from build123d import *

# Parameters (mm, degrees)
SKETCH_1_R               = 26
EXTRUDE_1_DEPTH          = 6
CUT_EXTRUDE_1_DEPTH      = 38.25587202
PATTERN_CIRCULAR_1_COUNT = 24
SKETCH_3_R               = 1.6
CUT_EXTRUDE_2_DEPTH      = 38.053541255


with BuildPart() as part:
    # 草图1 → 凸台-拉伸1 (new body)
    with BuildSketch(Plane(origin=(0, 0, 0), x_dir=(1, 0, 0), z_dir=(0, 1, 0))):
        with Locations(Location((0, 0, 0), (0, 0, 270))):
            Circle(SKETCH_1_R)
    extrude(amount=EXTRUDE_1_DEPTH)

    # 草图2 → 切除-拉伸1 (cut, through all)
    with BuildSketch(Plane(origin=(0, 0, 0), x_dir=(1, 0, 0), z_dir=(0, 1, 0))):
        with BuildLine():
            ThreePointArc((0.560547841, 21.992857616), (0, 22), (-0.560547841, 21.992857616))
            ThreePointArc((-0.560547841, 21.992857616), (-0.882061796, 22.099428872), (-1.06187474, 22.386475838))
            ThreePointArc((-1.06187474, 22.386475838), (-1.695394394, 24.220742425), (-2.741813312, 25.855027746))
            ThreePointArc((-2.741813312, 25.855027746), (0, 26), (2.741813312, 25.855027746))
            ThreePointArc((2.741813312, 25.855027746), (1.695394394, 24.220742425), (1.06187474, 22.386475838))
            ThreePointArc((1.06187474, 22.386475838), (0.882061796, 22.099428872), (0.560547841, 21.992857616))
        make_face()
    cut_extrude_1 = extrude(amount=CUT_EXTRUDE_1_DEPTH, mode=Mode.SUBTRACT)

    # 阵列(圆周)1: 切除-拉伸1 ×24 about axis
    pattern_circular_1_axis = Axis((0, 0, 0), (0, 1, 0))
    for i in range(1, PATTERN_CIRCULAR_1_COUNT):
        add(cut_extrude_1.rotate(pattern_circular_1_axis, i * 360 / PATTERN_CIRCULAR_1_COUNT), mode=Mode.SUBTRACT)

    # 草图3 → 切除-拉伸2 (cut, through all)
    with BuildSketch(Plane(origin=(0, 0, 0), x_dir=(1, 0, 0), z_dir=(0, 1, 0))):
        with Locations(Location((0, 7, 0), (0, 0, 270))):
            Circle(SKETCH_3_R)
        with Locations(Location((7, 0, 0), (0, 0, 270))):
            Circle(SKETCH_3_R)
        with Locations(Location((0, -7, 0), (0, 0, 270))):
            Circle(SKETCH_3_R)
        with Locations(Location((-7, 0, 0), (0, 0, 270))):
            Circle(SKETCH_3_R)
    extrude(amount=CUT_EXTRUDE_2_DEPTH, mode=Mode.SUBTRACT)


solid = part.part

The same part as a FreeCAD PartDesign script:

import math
import FreeCAD as App
import Part
import Sketcher
from FreeCAD import Vector
Q = App.Units.Quantity

doc = App.newDocument("Part")
body = doc.addObject("PartDesign::Body", "Body")

# Sketch on XZ plane
sketch1 = body.newObject("Sketcher::SketchObject", "Sketch")
sketch1.AttachmentSupport = (doc.getObject("XZ_Plane"), [""])
sketch1.MapMode = "FlatFace"
sketch1.addGeometry(Part.Circle(Vector(0, 0, 0), Vector(0, 0, 1), 26), False)
sketch1.addConstraint(Sketcher.Constraint("Coincident", 0, 3, -1, 1))
sketch1.addConstraint(Sketcher.Constraint("Diameter", 0, Q("52 mm")))
pad1 = body.newObject("PartDesign::Pad", "Pad")
pad1.Profile = sketch1
pad1.Length = 6
pad1.Reversed = True

# Sketch on XZ plane
sketch2 = body.newObject("Sketcher::SketchObject", "Sketch001")
sketch2.AttachmentSupport = (doc.getObject("XZ_Plane"), [""])
sketch2.MapMode = "FlatFace"
sketch2.addGeometry(Part.ArcOfCircle(Part.Circle(Vector(0, 0, 0), Vector(0, 0, 1), 22), math.radians(-91.46), math.radians(-88.54)), False)
sketch2.addGeometry(Part.ArcOfCircle(Part.Circle(Vector(0.57, -22.49, 0), Vector(0, 0, 1), 0.5), math.radians(12), math.radians(91)), False)
sketch2.addGeometry(Part.ArcOfCircle(Part.Circle(Vector(9.08, -20.64, 0), Vector(0, 0, 1), 8.21), math.radians(-168), math.radians(-141)), False)
sketch2.addGeometry(Part.ArcOfCircle(Part.Circle(Vector(0, 0, 0), Vector(0, 0, 1), 26), math.radians(-96.05), math.radians(-83.95)), False)
sketch2.addGeometry(Part.ArcOfCircle(Part.Circle(Vector(-9.08, -20.64, 0), Vector(0, 0, 1), 8.21), math.radians(-39), math.radians(-12)), False)
sketch2.addGeometry(Part.ArcOfCircle(Part.Circle(Vector(-0.57, -22.49, 0), Vector(0, 0, 1), 0.5), math.radians(89), math.radians(168)), False)
sketch2.addConstraint(Sketcher.Constraint("Tangent", 0, 2, 1, 2))
sketch2.addConstraint(Sketcher.Constraint("Tangent", 1, 1, 2, 1))
sketch2.addConstraint(Sketcher.Constraint("Coincident", 2, 2, 3, 2))
sketch2.addConstraint(Sketcher.Constraint("Coincident", 3, 1, 4, 1))
sketch2.addConstraint(Sketcher.Constraint("Tangent", 4, 2, 5, 2))
sketch2.addConstraint(Sketcher.Constraint("Tangent", 5, 1, 0, 1))
sketch2.addConstraint(Sketcher.Constraint("Coincident", 0, 3, -1, 1))
sketch2.addConstraint(Sketcher.Constraint("Coincident", 3, 3, -1, 1))
sketch2.addConstraint(Sketcher.Constraint("Equal", 2, 4))
sketch2.addConstraint(Sketcher.Constraint("Equal", 1, 5))
sketch2.addConstraint(Sketcher.Constraint("Symmetric", 2, 3, 4, 3, -2))
sketch2.addConstraint(Sketcher.Constraint("Radius", 0, Q("22 mm")))
sketch2.addConstraint(Sketcher.Constraint("Radius", 3, Q("26 mm")))
sketch2.addConstraint(Sketcher.Constraint("Radius", 1, Q("0.5 mm")))
sketch2.addConstraint(Sketcher.Constraint("Radius", 2, Q("8.208483 mm")))
sketch2.addConstraint(Sketcher.Constraint("DistanceY", 1, 1, 2, 3, Q("1.743801 mm")))
sketch2.addConstraint(Sketcher.Constraint("DistanceX", 5, 3, 2, 2, Q("3.315101 mm")))
pocket1 = body.newObject("PartDesign::Pocket", "Pocket")
pocket1.Profile = sketch2
pocket1.Type = "ThroughAll"
doc.recompute()

polarpattern = body.newObject("PartDesign::PolarPattern", "PolarPattern")
polarpattern.Originals = [pocket1]
polarpattern.Axis = (doc.getObject("Y_Axis"), [""])
polarpattern.Angle = 360
polarpattern.Occurrences = 24
body.Tip = polarpattern

# Sketch on XZ plane
sketch3 = body.newObject("Sketcher::SketchObject", "Sketch002")
sketch3.AttachmentSupport = (doc.getObject("XZ_Plane"), [""])
sketch3.MapMode = "FlatFace"
sketch3.addGeometry(Part.Circle(Vector(0, -7, 0), Vector(0, 0, 1), 1.6), False)
sketch3.addGeometry(Part.Circle(Vector(7, 0, 0), Vector(0, 0, 1), 1.6), False)
sketch3.addGeometry(Part.Circle(Vector(0, 7, 0), Vector(0, 0, 1), 1.6), False)
sketch3.addGeometry(Part.Circle(Vector(-7, 0, 0), Vector(0, 0, 1), 1.6), False)
sketch3.addConstraint(Sketcher.Constraint("Equal", 0, 1))
sketch3.addConstraint(Sketcher.Constraint("Equal", 1, 2))
sketch3.addConstraint(Sketcher.Constraint("Equal", 2, 3))
sketch3.addConstraint(Sketcher.Constraint("Symmetric", 0, 3, 2, 3, -1, 1))
sketch3.addConstraint(Sketcher.Constraint("Symmetric", 1, 3, 3, 3, -1, 1))
sketch3.addConstraint(Sketcher.Constraint("PointOnObject", 0, 3, -2))
sketch3.addConstraint(Sketcher.Constraint("PointOnObject", 1, 3, -1))
sketch3.addConstraint(Sketcher.Constraint("Diameter", 0, Q("3.2 mm")))
sketch3.addConstraint(Sketcher.Constraint("DistanceY", 0, 3, -1, 1, Q("7 mm")))
sketch3.addConstraint(Sketcher.Constraint("DistanceX", -1, 1, 1, 3, Q("7 mm")))
pocket2 = body.newObject("PartDesign::Pocket", "Pocket001")
pocket2.Profile = sketch3
pocket2.Type = "ThroughAll"

doc.recompute()
